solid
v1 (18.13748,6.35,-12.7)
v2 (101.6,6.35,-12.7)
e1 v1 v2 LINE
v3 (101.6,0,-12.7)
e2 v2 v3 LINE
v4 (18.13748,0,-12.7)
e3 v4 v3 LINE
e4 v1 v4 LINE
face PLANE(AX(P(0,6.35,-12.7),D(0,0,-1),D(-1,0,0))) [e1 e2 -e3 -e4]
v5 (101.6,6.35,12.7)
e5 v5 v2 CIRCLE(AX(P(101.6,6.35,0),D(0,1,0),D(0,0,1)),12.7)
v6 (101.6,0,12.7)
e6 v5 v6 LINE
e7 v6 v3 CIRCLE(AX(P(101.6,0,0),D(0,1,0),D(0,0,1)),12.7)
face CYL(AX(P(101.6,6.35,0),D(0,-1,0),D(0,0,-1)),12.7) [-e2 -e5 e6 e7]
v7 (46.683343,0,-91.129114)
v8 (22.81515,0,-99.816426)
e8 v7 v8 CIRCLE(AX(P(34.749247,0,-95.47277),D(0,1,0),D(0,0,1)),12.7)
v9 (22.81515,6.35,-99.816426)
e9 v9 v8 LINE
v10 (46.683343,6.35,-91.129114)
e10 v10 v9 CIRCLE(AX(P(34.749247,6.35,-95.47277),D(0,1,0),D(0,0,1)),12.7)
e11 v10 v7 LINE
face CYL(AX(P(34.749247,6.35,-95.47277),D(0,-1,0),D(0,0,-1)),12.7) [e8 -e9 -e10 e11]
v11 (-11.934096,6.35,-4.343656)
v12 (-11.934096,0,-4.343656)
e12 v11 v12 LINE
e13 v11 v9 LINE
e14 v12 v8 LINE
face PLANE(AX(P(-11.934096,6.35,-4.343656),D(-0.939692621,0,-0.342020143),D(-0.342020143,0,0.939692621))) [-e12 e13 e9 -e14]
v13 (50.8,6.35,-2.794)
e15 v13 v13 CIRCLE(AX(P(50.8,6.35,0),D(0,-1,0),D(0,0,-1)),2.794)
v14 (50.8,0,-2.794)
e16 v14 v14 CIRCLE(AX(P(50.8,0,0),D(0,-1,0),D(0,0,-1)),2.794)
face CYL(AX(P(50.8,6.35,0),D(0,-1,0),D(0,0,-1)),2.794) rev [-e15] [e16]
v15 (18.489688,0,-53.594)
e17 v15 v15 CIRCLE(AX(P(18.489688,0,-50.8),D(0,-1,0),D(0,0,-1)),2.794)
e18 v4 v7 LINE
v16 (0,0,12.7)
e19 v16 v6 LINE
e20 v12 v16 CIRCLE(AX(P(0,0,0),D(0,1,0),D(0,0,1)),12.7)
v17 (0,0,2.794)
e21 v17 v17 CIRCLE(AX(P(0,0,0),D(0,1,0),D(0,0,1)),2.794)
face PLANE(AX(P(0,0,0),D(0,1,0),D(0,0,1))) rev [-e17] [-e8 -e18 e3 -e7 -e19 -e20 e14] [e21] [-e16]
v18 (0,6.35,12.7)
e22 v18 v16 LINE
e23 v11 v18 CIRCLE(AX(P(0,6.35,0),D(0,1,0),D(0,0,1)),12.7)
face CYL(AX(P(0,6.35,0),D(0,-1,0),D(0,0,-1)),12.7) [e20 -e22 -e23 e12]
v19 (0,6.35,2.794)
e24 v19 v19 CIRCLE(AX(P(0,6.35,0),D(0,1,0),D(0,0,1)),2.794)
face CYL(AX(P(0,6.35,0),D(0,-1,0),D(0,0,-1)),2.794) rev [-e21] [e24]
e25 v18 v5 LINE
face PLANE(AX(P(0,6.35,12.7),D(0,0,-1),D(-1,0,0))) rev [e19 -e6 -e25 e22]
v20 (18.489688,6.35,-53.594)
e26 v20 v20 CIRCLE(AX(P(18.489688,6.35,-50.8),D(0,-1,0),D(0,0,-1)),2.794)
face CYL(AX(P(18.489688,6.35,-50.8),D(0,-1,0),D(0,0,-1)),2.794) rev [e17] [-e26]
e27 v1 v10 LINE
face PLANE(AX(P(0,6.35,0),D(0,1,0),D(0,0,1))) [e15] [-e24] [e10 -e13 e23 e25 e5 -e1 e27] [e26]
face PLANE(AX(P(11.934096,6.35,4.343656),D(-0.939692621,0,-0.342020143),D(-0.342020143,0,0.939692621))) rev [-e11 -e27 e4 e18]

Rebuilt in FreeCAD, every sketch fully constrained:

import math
import FreeCAD as App
import Part
import Sketcher

V = App.Vector
Q = App.Units.Quantity

doc = App.newDocument("Part")
body = doc.addObject("PartDesign::Body", "Body")

# Sketch on XZ plane
sketch1 = body.newObject("Sketcher::SketchObject", "Sketch")
sketch1.AttachmentSupport = (doc.getObject("XZ_Plane"), [""])
sketch1.MapMode = "FlatFace"
sketch1.addGeometry([
    Part.LineSegment(V(101.6, -12.7, 0), V(18.1, -12.7, 0)),  # 0
    Part.LineSegment(V(18.1, -12.7, 0), V(46.7, -91.1, 0)),  # 1
    Part.ArcOfCircle(Part.Circle(V(34.7, -95.5, 0), V(0, 0, 1), 12.7), math.radians(-160), math.radians(20)),  # 2
    Part.LineSegment(V(22.8, -99.8, 0), V(-11.9, -4.3, 0)),  # 3
    Part.ArcOfCircle(Part.Circle(V(0, 0, 0), V(0, 0, 1), 12.7), math.radians(90), math.radians(200)),  # 4
    Part.LineSegment(V(0, 12.7, 0), V(101.6, 12.7, 0)),  # 5
    Part.ArcOfCircle(Part.Circle(V(101.6, 0, 0), V(0, 0, 1), 12.7), math.radians(-90), math.radians(90)),  # 6
    Part.Circle(V(0, 0, 0), V(0, 0, 1), 2.8),  # 7
], False)
sketch1.addConstraint([
    Sketcher.Constraint("Coincident", 0, 2, 1, 1),
    Sketcher.Constraint("Tangent", 1, 2, 2, 2),
    Sketcher.Constraint("Tangent", 2, 1, 3, 1),
    Sketcher.Constraint("Tangent", 3, 2, 4, 2),
    Sketcher.Constraint("Tangent", 4, 1, 5, 1),
    Sketcher.Constraint("Tangent", 5, 2, 6, 2),
    Sketcher.Constraint("Tangent", 6, 1, 0, 1),
    Sketcher.Constraint("Horizontal", 0),
    Sketcher.Constraint("Horizontal", 5),
    Sketcher.Constraint("Coincident", 4, 3, -1, 1),
    Sketcher.Constraint("Coincident", 7, 3, -1, 1),
    Sketcher.Constraint("Equal", 2, 4),
    Sketcher.Constraint("Equal", 4, 6),
    Sketcher.Constraint("Parallel", 1, 3),
    Sketcher.Constraint("Radius", 2, Q("0.5 in")),
    Sketcher.Constraint("Diameter", 7, Q("0.22 in")),
    Sketcher.Constraint("DistanceX", 5, 1, 5, 2, Q("4 in")),
    Sketcher.Constraint("Distance", 3, Q("4 in")),
    Sketcher.Constraint("Angle", 1, Q("-70 deg")),
])
pad1 = body.newObject("PartDesign::Pad", "Pad")
pad1.Profile = sketch1
pad1.Length = Q("0.25 in")
pad1.Reversed = True

# Sketch on XZ plane
sketch2 = body.newObject("Sketcher::SketchObject", "Sketch001")
sketch2.AttachmentSupport = (doc.getObject("XZ_Plane"), [""])
sketch2.MapMode = "FlatFace"
sketch2.addGeometry([
    Part.Circle(V(50.8, 0, 0), V(0, 0, 1), 2.8),
    Part.Circle(V(18.5, -50.8, 0), V(0, 0, 1), 2.8),
], False)
sketch2.addConstraint([
    Sketcher.Constraint("Equal", 0, 1),
    Sketcher.Constraint("PointOnObject", 0, 3, -1),
    Sketcher.Constraint("Diameter", 0, Q("0.22 in")),
    Sketcher.Constraint("DistanceX", -1, 1, 0, 3, Q("2 in")),
    Sketcher.Constraint("DistanceY", 1, 3, -1, 1, Q("2 in")),
    Sketcher.Constraint("DistanceX", -1, 1, 1, 3, Q("18.489688 mm")),
])
pocket1 = body.newObject("PartDesign::Pocket", "Pocket")
pocket1.Profile = sketch2
pocket1.Length = Q("0.25 in")

doc.recompute()
